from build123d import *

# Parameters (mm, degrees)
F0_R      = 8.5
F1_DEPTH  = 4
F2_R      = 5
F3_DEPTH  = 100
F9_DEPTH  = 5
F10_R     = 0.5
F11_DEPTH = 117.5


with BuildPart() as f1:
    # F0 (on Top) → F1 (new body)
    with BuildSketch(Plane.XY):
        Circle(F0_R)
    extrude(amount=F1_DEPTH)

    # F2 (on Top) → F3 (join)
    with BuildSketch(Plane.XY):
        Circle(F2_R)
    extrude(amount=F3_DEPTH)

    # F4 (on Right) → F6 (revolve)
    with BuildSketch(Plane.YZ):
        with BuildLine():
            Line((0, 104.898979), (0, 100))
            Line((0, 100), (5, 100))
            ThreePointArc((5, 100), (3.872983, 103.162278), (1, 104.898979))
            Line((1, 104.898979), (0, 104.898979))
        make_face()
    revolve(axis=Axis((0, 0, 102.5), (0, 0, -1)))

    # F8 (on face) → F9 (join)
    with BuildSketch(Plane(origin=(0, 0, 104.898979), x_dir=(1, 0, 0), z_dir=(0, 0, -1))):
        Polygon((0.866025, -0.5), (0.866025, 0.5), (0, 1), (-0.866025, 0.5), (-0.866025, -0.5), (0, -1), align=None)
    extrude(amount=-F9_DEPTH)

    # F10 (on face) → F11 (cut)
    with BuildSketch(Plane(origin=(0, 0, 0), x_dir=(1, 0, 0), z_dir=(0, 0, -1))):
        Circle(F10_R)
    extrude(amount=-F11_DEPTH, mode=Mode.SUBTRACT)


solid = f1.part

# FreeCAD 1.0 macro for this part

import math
import FreeCAD as App
import Part
import Sketcher

V = App.Vector
Q = App.Units.Quantity

doc = App.newDocument("Part")
body = doc.addObject("PartDesign::Body", "Body")

sketch1 = doc.addObject("Sketcher::SketchObject", "Sketch")
body.addObject(sketch1)
sketch1.AttachmentSupport = (doc.XY_Plane, [""])
sketch1.MapMode = "FlatFace"
sketch1.addGeometry(Part.Circle(V(0, 0, 0), V(0, 0, 1), 8), False)
sketch1.addConstraint([
    Sketcher.Constraint("Coincident", 0, 3, -1, 1),
    Sketcher.Constraint("Diameter", 0, Q("17 mm")),
])
pad1 = doc.addObject("PartDesign::Pad", "Pad")
body.addObject(pad1)
pad1.Profile = sketch1
pad1.Length = 4

sketch2 = doc.addObject("Sketcher::SketchObject", "Sketch001")
body.addObject(sketch2)
sketch2.AttachmentSupport = (doc.XY_Plane, [""])
sketch2.MapMode = "FlatFace"
sketch2.addGeometry(Part.Circle(V(0, 0, 0), V(0, 0, 1), 5), False)
sketch2.addConstraint([
    Sketcher.Constraint("Coincident", 0, 3, -1, 1),
    Sketcher.Constraint("Diameter", 0, Q("10 mm")),
])
pad2 = doc.addObject("PartDesign::Pad", "Pad001")
body.addObject(pad2)
pad2.Profile = sketch2
pad2.Length = 100

sketch3 = doc.addObject("Sketcher::SketchObject", "Sketch002")
body.addObject(sketch3)
sketch3.AttachmentSupport = (doc.YZ_Plane, [""])
sketch3.MapMode = "FlatFace"
sketch3.addGeometry([
    Part.LineSegment(V(0, 104.9, 0), V(0, 100, 0)),
    Part.LineSegment(V(0, 100, 0), V(5, 100, 0)),
    Part.ArcOfCircle(Part.Circle(V(0, 100, 0), V(0, 0, 1), 5), math.radians(0), math.radians(78)),
    Part.LineSegment(V(1, 104.9, 0), V(0, 104.9, 0)),
], False)
sketch3.addConstraint([
    Sketcher.Constraint("Coincident", 0, 2, 1, 1),
    Sketcher.Constraint("Coincident", 1, 2, 2, 1),
    Sketcher.Constraint("Coincident", 2, 2, 3, 1),
    Sketcher.Constraint("Coincident", 3, 2, 0, 1),
    Sketcher.Constraint("Vertical", 0),
    Sketcher.Constraint("Horizontal", 1),
    Sketcher.Constraint("Horizontal", 3),
    Sketcher.Constraint("Coincident", 0, 2, 2, 3),
    Sketcher.Constraint("PointOnObject", 2, 3, -2),
    Sketcher.Constraint("Radius", 2, Q("4.999999 mm")),
    Sketcher.Constraint("DistanceX", 3, 2, 3, 1, Q("1 mm")),
    Sketcher.Constraint("DistanceY", -1, 1, 2, 3, Q("100 mm")),
])
revolution = doc.addObject("PartDesign::Revolution", "Revolution")
body.addObject(revolution)
revolution.Profile = sketch3
revolution.ReferenceAxis = (sketch3, ["V_Axis"])
revolution.Angle = 360

sketch4 = doc.addObject("Sketcher::SketchObject", "Sketch003")
body.addObject(sketch4)
sketch4.AttachmentSupport = (doc.XY_Plane, [""])
sketch4.MapMode = "FlatFace"
sketch4.AttachmentOffset = App.Placement(V(0, 0, 104.898979), App.Rotation())
sketch4.addGeometry([
    Part.LineSegment(V(0.9, 0.5, 0), V(0.9, -0.5, 0)),
    Part.LineSegment(V(0.9, -0.5, 0), V(0, -1, 0)),
    Part.LineSegment(V(0, -1, 0), V(-0.9, -0.5, 0)),
    Part.LineSegment(V(-0.9, -0.5, 0), V(-0.9, 0.5, 0)),
    Part.LineSegment(V(-0.9, 0.5, 0), V(0, 1, 0)),
    Part.LineSegment(V(0, 1, 0), V(0.9, 0.5, 0)),
], False)
sketch4.addConstraint([
    Sketcher.Constraint("Coincident", 0, 2, 1, 1),
    Sketcher.Constraint("Coincident", 1, 2, 2, 1),
    Sketcher.Constraint("Coincident", 2, 2, 3, 1),
    Sketcher.Constraint("Coincident", 3, 2, 4, 1),
    Sketcher.Constraint("Coincident", 4, 2, 5, 1),
    Sketcher.Constraint("Coincident", 5, 2, 0, 1),
    Sketcher.Constraint("Vertical", 0),
    Sketcher.Constraint("Vertical", 3),
    Sketcher.Constraint("Symmetric", 0, 2, 3, 2, -1, 1),
    Sketcher.Constraint("Symmetric", 1, 2, 4, 2, -1, 1),
    Sketcher.Constraint("PointOnObject", 1, 2, -2),
    Sketcher.Constraint("Parallel", 2, 5),
    Sketcher.Constraint("Horizontal", 0, 2, 2, 2),
    Sketcher.Constraint("DistanceY", 0, 2, 0, 1, Q("1 mm")),
    Sketcher.Constraint("Angle", 1, Q("-149.999988 deg")),
    Sketcher.Constraint("Distance", 1, Q("1 mm")),
])
pad3 = doc.addObject("PartDesign::Pad", "Pad002")
body.addObject(pad3)
pad3.Profile = sketch4
pad3.Length = 5

sketch5 = doc.addObject("Sketcher::SketchObject", "Sketch004")
body.addObject(sketch5)
sketch5.AttachmentSupport = (doc.XY_Plane, [""])
sketch5.MapMode = "FlatFace"
sketch5.addGeometry(Part.Circle(V(0, 0, 0), V(0, 0, 1), 0.5), False)
sketch5.addConstraint([
    Sketcher.Constraint("Coincident", 0, 3, -1, 1),
    Sketcher.Constraint("Diameter", 0, Q("1 mm")),
])
pocket1 = doc.addObject("PartDesign::Pocket", "Pocket")
body.addObject(pocket1)
pocket1.Profile = sketch5
pocket1.Length = 117.5
pocket1.Reversed = True

doc.recompute()
